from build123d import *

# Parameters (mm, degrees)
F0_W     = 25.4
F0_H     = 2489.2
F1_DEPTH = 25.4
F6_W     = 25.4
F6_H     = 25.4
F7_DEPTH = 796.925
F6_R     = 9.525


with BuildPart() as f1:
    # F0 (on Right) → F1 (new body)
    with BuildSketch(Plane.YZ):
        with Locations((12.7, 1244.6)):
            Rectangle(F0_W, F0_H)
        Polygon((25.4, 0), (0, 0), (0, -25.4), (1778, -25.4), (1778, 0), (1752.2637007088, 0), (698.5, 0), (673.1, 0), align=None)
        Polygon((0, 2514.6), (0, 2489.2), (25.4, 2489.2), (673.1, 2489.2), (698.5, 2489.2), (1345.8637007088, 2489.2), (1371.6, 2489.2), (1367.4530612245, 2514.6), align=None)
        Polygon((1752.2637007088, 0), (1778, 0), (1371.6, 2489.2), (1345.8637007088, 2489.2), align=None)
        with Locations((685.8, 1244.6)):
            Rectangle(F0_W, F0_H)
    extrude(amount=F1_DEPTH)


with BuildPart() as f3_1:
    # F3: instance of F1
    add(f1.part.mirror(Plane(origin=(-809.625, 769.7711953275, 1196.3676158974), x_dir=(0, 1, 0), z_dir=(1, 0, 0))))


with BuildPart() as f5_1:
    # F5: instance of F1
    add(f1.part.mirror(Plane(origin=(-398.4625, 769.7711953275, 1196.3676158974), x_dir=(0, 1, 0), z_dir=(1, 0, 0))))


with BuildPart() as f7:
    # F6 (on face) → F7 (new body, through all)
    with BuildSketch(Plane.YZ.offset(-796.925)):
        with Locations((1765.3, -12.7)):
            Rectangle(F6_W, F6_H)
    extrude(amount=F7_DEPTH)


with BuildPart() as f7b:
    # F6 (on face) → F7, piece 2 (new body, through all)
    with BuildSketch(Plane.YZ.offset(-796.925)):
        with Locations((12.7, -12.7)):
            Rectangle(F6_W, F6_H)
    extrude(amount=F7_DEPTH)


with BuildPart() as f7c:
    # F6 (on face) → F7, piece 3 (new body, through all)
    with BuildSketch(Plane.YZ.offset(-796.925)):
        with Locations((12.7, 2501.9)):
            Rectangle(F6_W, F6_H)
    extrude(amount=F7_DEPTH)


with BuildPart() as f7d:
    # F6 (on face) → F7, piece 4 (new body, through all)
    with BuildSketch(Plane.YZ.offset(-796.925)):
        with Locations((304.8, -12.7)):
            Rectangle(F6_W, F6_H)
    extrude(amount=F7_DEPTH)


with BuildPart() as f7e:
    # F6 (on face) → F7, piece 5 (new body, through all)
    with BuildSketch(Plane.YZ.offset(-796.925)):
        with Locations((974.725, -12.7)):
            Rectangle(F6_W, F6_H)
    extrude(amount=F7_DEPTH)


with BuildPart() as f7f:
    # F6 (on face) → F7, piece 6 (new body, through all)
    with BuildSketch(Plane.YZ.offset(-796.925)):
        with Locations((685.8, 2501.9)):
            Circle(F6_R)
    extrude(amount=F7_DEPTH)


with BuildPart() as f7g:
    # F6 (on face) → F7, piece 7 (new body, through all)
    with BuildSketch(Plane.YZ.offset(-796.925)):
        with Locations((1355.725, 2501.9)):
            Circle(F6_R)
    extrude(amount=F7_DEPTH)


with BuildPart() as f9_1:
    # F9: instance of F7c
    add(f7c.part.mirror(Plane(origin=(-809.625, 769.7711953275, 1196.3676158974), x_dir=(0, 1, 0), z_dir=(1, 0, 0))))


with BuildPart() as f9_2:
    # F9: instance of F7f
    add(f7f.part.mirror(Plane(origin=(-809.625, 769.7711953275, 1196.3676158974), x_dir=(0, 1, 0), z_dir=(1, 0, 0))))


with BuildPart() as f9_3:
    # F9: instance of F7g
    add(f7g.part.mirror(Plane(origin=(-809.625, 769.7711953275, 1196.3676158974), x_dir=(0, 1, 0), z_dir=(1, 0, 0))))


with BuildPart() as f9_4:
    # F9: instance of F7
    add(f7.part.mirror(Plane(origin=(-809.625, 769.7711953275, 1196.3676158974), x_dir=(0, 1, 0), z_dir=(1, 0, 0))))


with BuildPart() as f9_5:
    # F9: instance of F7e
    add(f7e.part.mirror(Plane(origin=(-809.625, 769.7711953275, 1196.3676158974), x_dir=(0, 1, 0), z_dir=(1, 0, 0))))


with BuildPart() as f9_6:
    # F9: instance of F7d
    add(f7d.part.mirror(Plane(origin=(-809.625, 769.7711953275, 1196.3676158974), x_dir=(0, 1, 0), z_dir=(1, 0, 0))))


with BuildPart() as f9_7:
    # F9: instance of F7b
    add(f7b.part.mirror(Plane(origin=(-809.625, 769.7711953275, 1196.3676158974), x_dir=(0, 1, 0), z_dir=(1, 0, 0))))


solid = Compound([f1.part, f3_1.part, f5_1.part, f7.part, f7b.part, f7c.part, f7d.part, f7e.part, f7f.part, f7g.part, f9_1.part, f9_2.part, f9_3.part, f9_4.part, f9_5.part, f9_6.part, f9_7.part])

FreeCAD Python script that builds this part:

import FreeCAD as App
import Part
import Sketcher
from FreeCAD import Vector
Q = App.Units.Quantity

doc = App.newDocument("Part")
body = doc.addObject("PartDesign::Body", "Body")

sketch1 = body.newObject("Sketcher::SketchObject", "Sketch")
sketch1.AttachmentSupport = (doc.getObject("YZ_Plane"), [""])
sketch1.MapMode = "FlatFace"
sketch1.addGeometry(Part.LineSegment(Vector(0, -25, 0), Vector(1778, -25, 0)), False)
sketch1.addGeometry(Part.LineSegment(Vector(1778, -25, 0), Vector(1778, 0, 0)), False)
sketch1.addGeometry(Part.LineSegment(Vector(1778, 0, 0), Vector(1367, 2515, 0)), False)
sketch1.addGeometry(Part.LineSegment(Vector(1367, 2515, 0), Vector(0, 2515, 0)), False)
sketch1.addGeometry(Part.LineSegment(Vector(0, 2515, 0), Vector(0, -25, 0)), False)
sketch1.addGeometry(Part.LineSegment(Vector(1752, 0, 0), Vector(698, 0, 0)), False)
sketch1.addGeometry(Part.LineSegment(Vector(698, 0, 0), Vector(698, 2489, 0)), False)
sketch1.addGeometry(Part.LineSegment(Vector(698, 2489, 0), Vector(1346, 2489, 0)), False)
sketch1.addGeometry(Part.LineSegment(Vector(1346, 2489, 0), Vector(1752, 0, 0)), False)
sketch1.addGeometry(Part.LineSegment(Vector(673, 0, 0), Vector(25, 0, 0)), False)
sketch1.addGeometry(Part.LineSegment(Vector(25, 0, 0), Vector(25, 2489, 0)), False)
sketch1.addGeometry(Part.LineSegment(Vector(25, 2489, 0), Vector(673, 2489, 0)), False)
sketch1.addGeometry(Part.LineSegment(Vector(673, 2489, 0), Vector(673, 0, 0)), False)
sketch1.addConstraint(Sketcher.Constraint("Coincident", 0, 2, 1, 1))
sketch1.addConstraint(Sketcher.Constraint("Coincident", 1, 2, 2, 1))
sketch1.addConstraint(Sketcher.Constraint("Coincident", 2, 2, 3, 1))
sketch1.addConstraint(Sketcher.Constraint("Coincident", 3, 2, 4, 1))
sketch1.addConstraint(Sketcher.Constraint("Coincident", 4, 2, 0, 1))
sketch1.addConstraint(Sketcher.Constraint("Coincident", 5, 2, 6, 1))
sketch1.addConstraint(Sketcher.Constraint("Coincident", 6, 2, 7, 1))
sketch1.addConstraint(Sketcher.Constraint("Coincident", 7, 2, 8, 1))
sketch1.addConstraint(Sketcher.Constraint("Coincident", 8, 2, 5, 1))
sketch1.addConstraint(Sketcher.Constraint("Coincident", 9, 2, 10, 1))
sketch1.addConstraint(Sketcher.Constraint("Coincident", 10, 2, 11, 1))
sketch1.addConstraint(Sketcher.Constraint("Coincident", 11, 2, 12, 1))
sketch1.addConstraint(Sketcher.Constraint("Coincident", 12, 2, 9, 1))
sketch1.addConstraint(Sketcher.Constraint("Horizontal", 0))
sketch1.addConstraint(Sketcher.Constraint("Vertical", 1))
sketch1.addConstraint(Sketcher.Constraint("Horizontal", 3))
sketch1.addConstraint(Sketcher.Constraint("Vertical", 4))
sketch1.addConstraint(Sketcher.Constraint("Horizontal", 5))
sketch1.addConstraint(Sketcher.Constraint("Vertical", 6))
sketch1.addConstraint(Sketcher.Constraint("Horizontal", 7))
sketch1.addConstraint(Sketcher.Constraint("Horizontal", 9))
sketch1.addConstraint(Sketcher.Constraint("Vertical", 10))
sketch1.addConstraint(Sketcher.Constraint("Horizontal", 11))
sketch1.addConstraint(Sketcher.Constraint("Vertical", 12))
sketch1.addConstraint(Sketcher.Constraint("PointOnObject", 1, 2, -1))
sketch1.addConstraint(Sketcher.Constraint("PointOnObject", 3, 2, -2))
sketch1.addConstraint(Sketcher.Constraint("PointOnObject", 5, 2, -1))
sketch1.addConstraint(Sketcher.Constraint("PointOnObject", 9, 2, -1))
sketch1.addConstraint(Sketcher.Constraint("Parallel", 2, 8))
sketch1.addConstraint(Sketcher.Constraint("Horizontal", 7, 2, 10, 2))
sketch1.addConstraint(Sketcher.Constraint("DistanceX", 0, 1, 0, 2, Q("70 in")))
sketch1.addConstraint(Sketcher.Constraint("DistanceY", 1, 1, 1, 2, Q("1 in")))
sketch1.addConstraint(Sketcher.Constraint("DistanceY", 4, 2, 4, 1, Q("100 in")))
sketch1.addConstraint(Sketcher.Constraint("DistanceY", 6, 1, 6, 2, Q("98 in")))
sketch1.addConstraint(Sketcher.Constraint("DistanceX", 9, 2, 9, 1, Q("25.5 in")))
sketch1.addConstraint(Sketcher.Constraint("DistanceX", -1, 1, 9, 2, Q("1 in")))
sketch1.addConstraint(Sketcher.Constraint("DistanceX", 7, 2, 8, 2, Q("16 in")))
sketch1.addConstraint(Sketcher.Constraint("DistanceX", 11, 2, 6, 2, Q("1 in")))
sketch1.addConstraint(Sketcher.Constraint("DistanceX", 5, 2, 5, 1, Q("1053.763701 mm")))
pad1 = body.newObject("PartDesign::Pad", "Pad")
pad1.Profile = sketch1
pad1.Length = Q("1 in")
body2 = doc.addObject("PartDesign::Body", "Body001")
doc.recompute()

mirroring = doc.addObject("Part::Mirroring", "Mirroring")
mirroring.Source = body
mirroring.Base = Vector(-809.625, 769.771195, 1196.367616)
mirroring.Normal = Vector(1, 0, 0)
body2.BaseFeature = mirroring
doc.recompute()
body3 = doc.addObject("PartDesign::Body", "Body002")
doc.recompute()

mirroring2 = doc.addObject("Part::Mirroring", "Mirroring001")
mirroring2.Source = body
mirroring2.Base = Vector(-398.4625, 769.771195, 1196.367616)
mirroring2.Normal = Vector(1, 0, 0)
body3.BaseFeature = mirroring2
doc.recompute()
body4 = doc.addObject("PartDesign::Body", "Body003")

sketch2 = body4.newObject("Sketcher::SketchObject", "Sketch001")
sketch2.AttachmentSupport = (doc.getObject("YZ_Plane003"), [""])
sketch2.MapMode = "FlatFace"
sketch2.AttachmentOffset = App.Placement(Vector(0, 0, -31.375 * 25.4), App.Rotation())
sketch2.addGeometry(Part.LineSegment(Vector(1753, 0, 0), Vector(1753, -25, 0)), False)
sketch2.addGeometry(Part.LineSegment(Vector(1753, -25, 0), Vector(1778, -25, 0)), False)
sketch2.addGeometry(Part.LineSegment(Vector(1778, -25, 0), Vector(1778, 0, 0)), False)
sketch2.addGeometry(Part.LineSegment(Vector(1778, 0, 0), Vector(1753, 0, 0)), False)
sketch2.addConstraint(Sketcher.Constraint("Coincident", 0, 2, 1, 1))
sketch2.addConstraint(Sketcher.Constraint("Coincident", 1, 2, 2, 1))
sketch2.addConstraint(Sketcher.Constraint("Coincident", 2, 2, 3, 1))
sketch2.addConstraint(Sketcher.Constraint("Coincident", 3, 2, 0, 1))
sketch2.addConstraint(Sketcher.Constraint("Vertical", 0))
sketch2.addConstraint(Sketcher.Constraint("Horizontal", 1))
sketch2.addConstraint(Sketcher.Constraint("Vertical", 2))
sketch2.addConstraint(Sketcher.Constraint("Horizontal", 3))
sketch2.addConstraint(Sketcher.Constraint("PointOnObject", 2, 2, -1))
sketch2.addConstraint(Sketcher.Constraint("Equal", 3, 0))
sketch2.addConstraint(Sketcher.Constraint("DistanceX", 1, 1, 1, 2, Q("1 in")))
sketch2.addConstraint(Sketcher.Constraint("DistanceX", -1, 1, 0, 2, Q("69 in")))
pad2 = body4.newObject("PartDesign::Pad", "Pad001")
pad2.Profile = sketch2
pad2.Length = Q("31.375 in")
body5 = doc.addObject("PartDesign::Body", "Body004")

sketch3 = body5.newObject("Sketcher::SketchObject", "Sketch002")
sketch3.AttachmentSupport = (doc.getObject("YZ_Plane004"), [""])
sketch3.MapMode = "FlatFace"
sketch3.AttachmentOffset = App.Placement(Vector(0, 0, -31.375 * 25.4), App.Rotation())
sketch3.addGeometry(Part.LineSegment(Vector(0, 0, 0), Vector(0, -25, 0)), False)
sketch3.addGeometry(Part.LineSegment(Vector(0, -25, 0), Vector(25, -25, 0)), False)
sketch3.addGeometry(Part.LineSegment(Vector(25, -25, 0), Vector(25, 0, 0)), False)
sketch3.addGeometry(Part.LineSegment(Vector(25, 0, 0), Vector(0, 0, 0)), False)
sketch3.addConstraint(Sketcher.Constraint("Coincident", 0, 2, 1, 1))
sketch3.addConstraint(Sketcher.Constraint("Coincident", 1, 2, 2, 1))
sketch3.addConstraint(Sketcher.Constraint("Coincident", 2, 2, 3, 1))
sketch3.addConstraint(Sketcher.Constraint("Coincident", 3, 2, 0, 1))
sketch3.addConstraint(Sketcher.Constraint("Vertical", 0))
sketch3.addConstraint(Sketcher.Constraint("Horizontal", 1))
sketch3.addConstraint(Sketcher.Constraint("Vertical", 2))
sketch3.addConstraint(Sketcher.Constraint("Horizontal", 3))
sketch3.addConstraint(Sketcher.Constraint("Coincident", 3, 2, -1, 1))
sketch3.addConstraint(Sketcher.Constraint("Equal", 3, 0))
sketch3.addConstraint(Sketcher.Constraint("DistanceX", 1, 1, 1, 2, Q("1 in")))
pad3 = body5.newObject("PartDesign::Pad", "Pad002")
pad3.Profile = sketch3
pad3.Length = Q("31.375 in")
body6 = doc.addObject("PartDesign::Body", "Body005")

sketch4 = body6.newObject("Sketcher::SketchObject", "Sketch003")
sketch4.AttachmentSupport = (doc.getObject("YZ_Plane005"), [""])
sketch4.MapMode = "FlatFace"
sketch4.AttachmentOffset = App.Placement(Vector(0, 0, -31.375 * 25.4), App.Rotation())
sketch4.addGeometry(Part.LineSegment(Vector(0, 2515, 0), Vector(0, 2489, 0)), False)
sketch4.addGeometry(Part.LineSegment(Vector(0, 2489, 0), Vector(25, 2489, 0)), False)
sketch4.addGeometry(Part.LineSegment(Vector(25, 2489, 0), Vector(25, 2515, 0)), False)
sketch4.addGeometry(Part.LineSegment(Vector(25, 2515, 0), Vector(0, 2515, 0)), False)
sketch4.addConstraint(Sketcher.Constraint("Coincident", 0, 2, 1, 1))
sketch4.addConstraint(Sketcher.Constraint("Coincident", 1, 2, 2, 1))
sketch4.addConstraint(Sketcher.Constraint("Coincident", 2, 2, 3, 1))
sketch4.addConstraint(Sketcher.Constraint("Coincident", 3, 2, 0, 1))
sketch4.addConstraint(Sketcher.Constraint("Vertical", 0))
sketch4.addConstraint(Sketcher.Constraint("Horizontal", 1))
sketch4.addConstraint(Sketcher.Constraint("Vertical", 2))
sketch4.addConstraint(Sketcher.Constraint("Horizontal", 3))
sketch4.addConstraint(Sketcher.Constraint("PointOnObject", 0, 2, -2))
sketch4.addConstraint(Sketcher.Constraint("Equal", 3, 0))
sketch4.addConstraint(Sketcher.Constraint("DistanceX", 1, 1, 1, 2, Q("1 in")))
sketch4.addConstraint(Sketcher.Constraint("DistanceY", -1, 1, 0, 2, Q("98 in")))
pad4 = body6.newObject("PartDesign::Pad", "Pad003")
pad4.Profile = sketch4
pad4.Length = Q("31.375 in")
body7 = doc.addObject("PartDesign::Body", "Body006")

sketch5 = body7.newObject("Sketcher::SketchObject", "Sketch004")
sketch5.AttachmentSupport = (doc.getObject("YZ_Plane006"), [""])
sketch5.MapMode = "FlatFace"
sketch5.AttachmentOffset = App.Placement(Vector(0, 0, -31.375 * 25.4), App.Rotation())
sketch5.addGeometry(Part.LineSegment(Vector(292, 0, 0), Vector(292, -25, 0)), False)
sketch5.addGeometry(Part.LineSegment(Vector(292, -25, 0), Vector(318, -25, 0)), False)
sketch5.addGeometry(Part.LineSegment(Vector(318, -25, 0), Vector(318, 0, 0)), False)
sketch5.addGeometry(Part.LineSegment(Vector(318, 0, 0), Vector(292, 0, 0)), False)
sketch5.addConstraint(Sketcher.Constraint("Coincident", 0, 2, 1, 1))
sketch5.addConstraint(Sketcher.Constraint("Coincident", 1, 2, 2, 1))
sketch5.addConstraint(Sketcher.Constraint("Coincident", 2, 2, 3, 1))
sketch5.addConstraint(Sketcher.Constraint("Coincident", 3, 2, 0, 1))
sketch5.addConstraint(Sketcher.Constraint("Vertical", 0))
sketch5.addConstraint(Sketcher.Constraint("Horizontal", 1))
sketch5.addConstraint(Sketcher.Constraint("Vertical", 2))
sketch5.addConstraint(Sketcher.Constraint("Horizontal", 3))
sketch5.addConstraint(Sketcher.Constraint("PointOnObject", 2, 2, -1))
sketch5.addConstraint(Sketcher.Constraint("Equal", 3, 0))
sketch5.addConstraint(Sketcher.Constraint("DistanceX", 1, 1, 1, 2, Q("1 in")))
sketch5.addConstraint(Sketcher.Constraint("DistanceX", -1, 1, 0, 2, Q("11.5 in")))
pad5 = body7.newObject("PartDesign::Pad", "Pad004")
pad5.Profile = sketch5
pad5.Length = Q("31.375 in")
body8 = doc.addObject("PartDesign::Body", "Body007")

sketch6 = body8.newObject("Sketcher::SketchObject", "Sketch005")
sketch6.AttachmentSupport = (doc.getObject("YZ_Plane007"), [""])
sketch6.MapMode = "FlatFace"
sketch6.AttachmentOffset = App.Placement(Vector(0, 0, -31.375 * 25.4), App.Rotation())
sketch6.addGeometry(Part.LineSegment(Vector(962, 0, 0), Vector(962, -25, 0)), False)
sketch6.addGeometry(Part.LineSegment(Vector(962, -25, 0), Vector(987, -25, 0)), False)
sketch6.addGeometry(Part.LineSegment(Vector(987, -25, 0), Vector(987, 0, 0)), False)
sketch6.addGeometry(Part.LineSegment(Vector(987, 0, 0), Vector(962, 0, 0)), False)
sketch6.addConstraint(Sketcher.Constraint("Coincident", 0, 2, 1, 1))
sketch6.addConstraint(Sketcher.Constraint("Coincident", 1, 2, 2, 1))
sketch6.addConstraint(Sketcher.Constraint("Coincident", 2, 2, 3, 1))
sketch6.addConstraint(Sketcher.Constraint("Coincident", 3, 2, 0, 1))
sketch6.addConstraint(Sketcher.Constraint("Vertical", 0))
sketch6.addConstraint(Sketcher.Constraint("Horizontal", 1))
sketch6.addConstraint(Sketcher.Constraint("Vertical", 2))
sketch6.addConstraint(Sketcher.Constraint("Horizontal", 3))
sketch6.addConstraint(Sketcher.Constraint("PointOnObject", 2, 2, -1))
sketch6.addConstraint(Sketcher.Constraint("Equal", 3, 0))
sketch6.addConstraint(Sketcher.Constraint("DistanceX", 1, 1, 1, 2, Q("1 in")))
sketch6.addConstraint(Sketcher.Constraint("DistanceX", -1, 1, 0, 2, Q("37.875 in")))
pad6 = body8.newObject("PartDesign::Pad", "Pad005")
pad6.Profile = sketch6
pad6.Length = Q("31.375 in")
body9 = doc.addObject("PartDesign::Body", "Body008")

sketch7 = body9.newObject("Sketcher::SketchObject", "Sketch006")
sketch7.AttachmentSupport = (doc.getObject("YZ_Plane008"), [""])
sketch7.MapMode = "FlatFace"
sketch7.AttachmentOffset = App.Placement(Vector(0, 0, -31.375 * 25.4), App.Rotation())
sketch7.addGeometry(Part.Circle(Vector(686, 2502, 0), Vector(0, 0, 1), 10), False)
sketch7.addConstraint(Sketcher.Constraint("Diameter", 0, Q("0.75 in")))
sketch7.addConstraint(Sketcher.Constraint("DistanceX", -1, 1, 0, 3, Q("27 in")))
sketch7.addConstraint(Sketcher.Constraint("DistanceY", -1, 1, 0, 3, Q("98.5 in")))
pad7 = body9.newObject("PartDesign::Pad", "Pad006")
pad7.Profile = sketch7
pad7.Length = Q("31.375 in")
body10 = doc.addObject("PartDesign::Body", "Body009")

sketch8 = body10.newObject("Sketcher::SketchObject", "Sketch007")
sketch8.AttachmentSupport = (doc.getObject("YZ_Plane009"), [""])
sketch8.MapMode = "FlatFace"
sketch8.AttachmentOffset = App.Placement(Vector(0, 0, -31.375 * 25.4), App.Rotation())
sketch8.addGeometry(Part.Circle(Vector(1356, 2502, 0), Vector(0, 0, 1), 10), False)
sketch8.addConstraint(Sketcher.Constraint("Diameter", 0, Q("0.75 in")))
sketch8.addConstraint(Sketcher.Constraint("DistanceY", -1, 1, 0, 3, Q("98.5 in")))
sketch8.addConstraint(Sketcher.Constraint("DistanceX", -1, 1, 0, 3, Q("53.375 in")))
pad8 = body10.newObject("PartDesign::Pad", "Pad007")
pad8.Profile = sketch8
pad8.Length = Q("31.375 in")
body11 = doc.addObject("PartDesign::Body", "Body010")
doc.recompute()

mirroring3 = doc.addObject("Part::Mirroring", "Mirroring002")
mirroring3.Source = body6
mirroring3.Base = Vector(-809.625, 769.771195, 1196.367616)
mirroring3.Normal = Vector(1, 0, 0)
body11.BaseFeature = mirroring3
doc.recompute()
body12 = doc.addObject("PartDesign::Body", "Body011")
doc.recompute()

mirroring4 = doc.addObject("Part::Mirroring", "Mirroring003")
mirroring4.Source = body9
mirroring4.Base = Vector(-809.625, 769.771195, 1196.367616)
mirroring4.Normal = Vector(1, 0, 0)
body12.BaseFeature = mirroring4
doc.recompute()
body13 = doc.addObject("PartDesign::Body", "Body012")
doc.recompute()

mirroring5 = doc.addObject("Part::Mirroring", "Mirroring004")
mirroring5.Source = body10
mirroring5.Base = Vector(-809.625, 769.771195, 1196.367616)
mirroring5.Normal = Vector(1, 0, 0)
body13.BaseFeature = mirroring5
doc.recompute()
body14 = doc.addObject("PartDesign::Body", "Body013")
doc.recompute()

mirroring6 = doc.addObject("Part::Mirroring", "Mirroring005")
mirroring6.Source = body4
mirroring6.Base = Vector(-809.625, 769.771195, 1196.367616)
mirroring6.Normal = Vector(1, 0, 0)
body14.BaseFeature = mirroring6
doc.recompute()
body15 = doc.addObject("PartDesign::Body", "Body014")
doc.recompute()

mirroring7 = doc.addObject("Part::Mirroring", "Mirroring006")
mirroring7.Source = body8
mirroring7.Base = Vector(-809.625, 769.771195, 1196.367616)
mirroring7.Normal = Vector(1, 0, 0)
body15.BaseFeature = mirroring7
doc.recompute()
body16 = doc.addObject("PartDesign::Body", "Body015")
doc.recompute()

mirroring8 = doc.addObject("Part::Mirroring", "Mirroring007")
mirroring8.Source = body7
mirroring8.Base = Vector(-809.625, 769.771195, 1196.367616)
mirroring8.Normal = Vector(1, 0, 0)
body16.BaseFeature = mirroring8
doc.recompute()
body17 = doc.addObject("PartDesign::Body", "Body016")
doc.recompute()

mirroring9 = doc.addObject("Part::Mirroring", "Mirroring008")
mirroring9.Source = body5
mirroring9.Base = Vector(-809.625, 769.771195, 1196.367616)
mirroring9.Normal = Vector(1, 0, 0)
body17.BaseFeature = mirroring9
doc.recompute()

doc.recompute()
